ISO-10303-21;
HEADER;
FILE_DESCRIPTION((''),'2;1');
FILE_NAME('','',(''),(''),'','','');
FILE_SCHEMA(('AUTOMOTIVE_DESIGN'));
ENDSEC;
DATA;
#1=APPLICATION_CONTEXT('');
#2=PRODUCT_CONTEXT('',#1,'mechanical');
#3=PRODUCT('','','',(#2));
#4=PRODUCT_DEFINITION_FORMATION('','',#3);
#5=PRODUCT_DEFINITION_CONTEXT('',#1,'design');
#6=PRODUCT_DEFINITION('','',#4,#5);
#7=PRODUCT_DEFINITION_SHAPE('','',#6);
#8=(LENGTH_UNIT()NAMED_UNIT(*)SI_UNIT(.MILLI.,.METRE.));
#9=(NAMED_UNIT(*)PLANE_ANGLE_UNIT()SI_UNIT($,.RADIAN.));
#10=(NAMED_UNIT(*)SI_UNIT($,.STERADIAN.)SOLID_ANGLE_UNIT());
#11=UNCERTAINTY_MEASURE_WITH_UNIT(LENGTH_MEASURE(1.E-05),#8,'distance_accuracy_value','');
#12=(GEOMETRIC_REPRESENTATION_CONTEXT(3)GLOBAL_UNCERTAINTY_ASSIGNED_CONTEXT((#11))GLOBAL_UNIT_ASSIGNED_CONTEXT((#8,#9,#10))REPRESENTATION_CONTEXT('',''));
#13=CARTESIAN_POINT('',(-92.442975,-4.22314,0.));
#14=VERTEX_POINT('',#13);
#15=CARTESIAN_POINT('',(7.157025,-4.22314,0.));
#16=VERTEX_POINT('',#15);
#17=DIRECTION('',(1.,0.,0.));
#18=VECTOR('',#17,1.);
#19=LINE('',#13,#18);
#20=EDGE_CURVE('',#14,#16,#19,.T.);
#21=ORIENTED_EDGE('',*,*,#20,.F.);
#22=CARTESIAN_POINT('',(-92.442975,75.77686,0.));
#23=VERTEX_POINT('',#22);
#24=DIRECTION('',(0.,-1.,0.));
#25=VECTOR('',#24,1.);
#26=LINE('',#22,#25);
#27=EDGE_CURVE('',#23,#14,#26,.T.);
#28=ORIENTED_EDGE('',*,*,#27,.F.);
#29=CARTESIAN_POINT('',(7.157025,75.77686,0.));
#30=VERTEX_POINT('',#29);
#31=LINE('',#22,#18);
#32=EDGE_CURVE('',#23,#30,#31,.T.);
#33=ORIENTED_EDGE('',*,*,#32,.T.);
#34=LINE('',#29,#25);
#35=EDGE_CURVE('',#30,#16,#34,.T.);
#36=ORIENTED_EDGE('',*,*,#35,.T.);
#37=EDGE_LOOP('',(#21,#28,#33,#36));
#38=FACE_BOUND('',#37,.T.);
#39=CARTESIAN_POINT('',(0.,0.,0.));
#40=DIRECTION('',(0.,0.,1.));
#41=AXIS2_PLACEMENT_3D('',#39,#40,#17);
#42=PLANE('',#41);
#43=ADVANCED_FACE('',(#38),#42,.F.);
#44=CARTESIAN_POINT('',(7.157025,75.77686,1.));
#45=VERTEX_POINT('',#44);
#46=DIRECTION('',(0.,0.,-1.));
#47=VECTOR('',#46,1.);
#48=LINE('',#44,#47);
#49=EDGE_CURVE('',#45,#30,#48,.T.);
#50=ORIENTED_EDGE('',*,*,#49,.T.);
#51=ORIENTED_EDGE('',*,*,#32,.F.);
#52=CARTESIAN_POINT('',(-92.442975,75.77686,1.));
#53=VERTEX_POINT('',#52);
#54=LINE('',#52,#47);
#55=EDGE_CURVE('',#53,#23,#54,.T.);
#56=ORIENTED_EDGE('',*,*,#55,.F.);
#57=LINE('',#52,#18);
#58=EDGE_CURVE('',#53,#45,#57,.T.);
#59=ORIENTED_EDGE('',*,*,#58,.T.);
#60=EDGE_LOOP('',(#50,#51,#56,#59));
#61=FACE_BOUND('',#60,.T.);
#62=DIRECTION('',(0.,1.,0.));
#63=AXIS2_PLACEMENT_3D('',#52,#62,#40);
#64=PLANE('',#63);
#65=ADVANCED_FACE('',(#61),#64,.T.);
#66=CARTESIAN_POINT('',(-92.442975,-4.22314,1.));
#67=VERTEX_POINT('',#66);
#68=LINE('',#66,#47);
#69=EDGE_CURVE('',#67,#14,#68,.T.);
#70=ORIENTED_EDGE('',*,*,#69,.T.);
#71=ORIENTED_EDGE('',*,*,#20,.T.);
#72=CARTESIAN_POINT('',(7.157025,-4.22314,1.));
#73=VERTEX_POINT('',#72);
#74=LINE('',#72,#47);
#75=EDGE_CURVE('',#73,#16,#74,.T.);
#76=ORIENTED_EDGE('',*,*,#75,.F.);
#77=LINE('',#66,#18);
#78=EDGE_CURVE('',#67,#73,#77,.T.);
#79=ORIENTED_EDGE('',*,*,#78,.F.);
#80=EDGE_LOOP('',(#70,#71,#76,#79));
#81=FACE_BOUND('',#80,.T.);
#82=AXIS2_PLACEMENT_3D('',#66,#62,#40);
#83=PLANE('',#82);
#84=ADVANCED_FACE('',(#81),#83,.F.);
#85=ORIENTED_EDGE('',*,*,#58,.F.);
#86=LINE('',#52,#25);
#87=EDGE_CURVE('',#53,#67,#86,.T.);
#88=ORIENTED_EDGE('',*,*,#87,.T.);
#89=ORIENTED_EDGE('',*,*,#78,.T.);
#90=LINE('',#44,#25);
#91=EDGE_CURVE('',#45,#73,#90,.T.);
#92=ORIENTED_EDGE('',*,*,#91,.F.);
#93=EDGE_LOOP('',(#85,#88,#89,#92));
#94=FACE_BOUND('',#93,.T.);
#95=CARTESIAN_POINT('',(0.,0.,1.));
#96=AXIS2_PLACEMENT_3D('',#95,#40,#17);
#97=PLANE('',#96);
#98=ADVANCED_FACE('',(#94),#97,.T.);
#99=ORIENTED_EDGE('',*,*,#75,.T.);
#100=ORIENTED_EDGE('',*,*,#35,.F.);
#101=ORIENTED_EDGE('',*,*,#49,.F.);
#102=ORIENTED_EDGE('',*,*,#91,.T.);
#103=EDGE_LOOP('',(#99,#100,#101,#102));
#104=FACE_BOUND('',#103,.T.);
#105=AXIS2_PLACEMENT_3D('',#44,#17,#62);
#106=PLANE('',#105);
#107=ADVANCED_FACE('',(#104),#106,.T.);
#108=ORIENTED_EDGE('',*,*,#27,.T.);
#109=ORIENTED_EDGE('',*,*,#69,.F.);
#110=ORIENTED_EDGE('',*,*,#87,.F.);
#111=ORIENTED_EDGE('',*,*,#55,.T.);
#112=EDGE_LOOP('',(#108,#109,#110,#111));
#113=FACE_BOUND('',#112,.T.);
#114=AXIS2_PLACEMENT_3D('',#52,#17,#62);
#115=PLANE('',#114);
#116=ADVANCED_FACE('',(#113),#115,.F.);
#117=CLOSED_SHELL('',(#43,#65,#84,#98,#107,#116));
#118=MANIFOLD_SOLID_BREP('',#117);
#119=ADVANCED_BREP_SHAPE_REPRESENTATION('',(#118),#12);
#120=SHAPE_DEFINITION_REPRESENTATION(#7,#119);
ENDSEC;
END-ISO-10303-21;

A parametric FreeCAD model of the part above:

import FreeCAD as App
import Part
import Sketcher

V = App.Vector


def add_polygon(sketch, points):
    """Adds a closed chain of lines whose ends are joined by coincident constraints."""
    first, n = sketch.GeometryCount, len(points)
    for a, b in zip(points, points[1:] + points[:1]):
        sketch.addGeometry(Part.LineSegment(App.Vector(*a, 0), App.Vector(*b, 0)), False)
    for i in range(n):
        sketch.addConstraint(Sketcher.Constraint("Coincident", first + i, 2, first + (i + 1) % n, 1))

doc = App.newDocument("Part")
body = doc.addObject("PartDesign::Body", "Body")

# Sketch on XY plane
sketch1 = body.newObject("Sketcher::SketchObject", "Sketch")
sketch1.AttachmentSupport = (doc.getObject("XY_Plane"), [""])
sketch1.MapMode = "FlatFace"
add_polygon(sketch1, [(-92, 76), (-92, -4), (7, -4), (7, 76)])  # lines 0-3
sketch1.addConstraint([
    Sketcher.Constraint("Vertical", 0),
    Sketcher.Constraint("Horizontal", 1),
    Sketcher.Constraint("Vertical", 2),
    Sketcher.Constraint("Horizontal", 3),
    Sketcher.Constraint("DistanceY", 0, 2, 0, 1, 80.0),
    Sketcher.Constraint("DistanceX", 1, 1, 1, 2, 99.6),
    Sketcher.Constraint("DistanceY", 0, 2, -1, 1, 4.22314),
    Sketcher.Constraint("DistanceX", 0, 2, -1, 1, 92.442975),
])
pad1 = body.newObject("PartDesign::Pad", "Pad")
pad1.Profile = sketch1
pad1.Length = 1

doc.recompute()
